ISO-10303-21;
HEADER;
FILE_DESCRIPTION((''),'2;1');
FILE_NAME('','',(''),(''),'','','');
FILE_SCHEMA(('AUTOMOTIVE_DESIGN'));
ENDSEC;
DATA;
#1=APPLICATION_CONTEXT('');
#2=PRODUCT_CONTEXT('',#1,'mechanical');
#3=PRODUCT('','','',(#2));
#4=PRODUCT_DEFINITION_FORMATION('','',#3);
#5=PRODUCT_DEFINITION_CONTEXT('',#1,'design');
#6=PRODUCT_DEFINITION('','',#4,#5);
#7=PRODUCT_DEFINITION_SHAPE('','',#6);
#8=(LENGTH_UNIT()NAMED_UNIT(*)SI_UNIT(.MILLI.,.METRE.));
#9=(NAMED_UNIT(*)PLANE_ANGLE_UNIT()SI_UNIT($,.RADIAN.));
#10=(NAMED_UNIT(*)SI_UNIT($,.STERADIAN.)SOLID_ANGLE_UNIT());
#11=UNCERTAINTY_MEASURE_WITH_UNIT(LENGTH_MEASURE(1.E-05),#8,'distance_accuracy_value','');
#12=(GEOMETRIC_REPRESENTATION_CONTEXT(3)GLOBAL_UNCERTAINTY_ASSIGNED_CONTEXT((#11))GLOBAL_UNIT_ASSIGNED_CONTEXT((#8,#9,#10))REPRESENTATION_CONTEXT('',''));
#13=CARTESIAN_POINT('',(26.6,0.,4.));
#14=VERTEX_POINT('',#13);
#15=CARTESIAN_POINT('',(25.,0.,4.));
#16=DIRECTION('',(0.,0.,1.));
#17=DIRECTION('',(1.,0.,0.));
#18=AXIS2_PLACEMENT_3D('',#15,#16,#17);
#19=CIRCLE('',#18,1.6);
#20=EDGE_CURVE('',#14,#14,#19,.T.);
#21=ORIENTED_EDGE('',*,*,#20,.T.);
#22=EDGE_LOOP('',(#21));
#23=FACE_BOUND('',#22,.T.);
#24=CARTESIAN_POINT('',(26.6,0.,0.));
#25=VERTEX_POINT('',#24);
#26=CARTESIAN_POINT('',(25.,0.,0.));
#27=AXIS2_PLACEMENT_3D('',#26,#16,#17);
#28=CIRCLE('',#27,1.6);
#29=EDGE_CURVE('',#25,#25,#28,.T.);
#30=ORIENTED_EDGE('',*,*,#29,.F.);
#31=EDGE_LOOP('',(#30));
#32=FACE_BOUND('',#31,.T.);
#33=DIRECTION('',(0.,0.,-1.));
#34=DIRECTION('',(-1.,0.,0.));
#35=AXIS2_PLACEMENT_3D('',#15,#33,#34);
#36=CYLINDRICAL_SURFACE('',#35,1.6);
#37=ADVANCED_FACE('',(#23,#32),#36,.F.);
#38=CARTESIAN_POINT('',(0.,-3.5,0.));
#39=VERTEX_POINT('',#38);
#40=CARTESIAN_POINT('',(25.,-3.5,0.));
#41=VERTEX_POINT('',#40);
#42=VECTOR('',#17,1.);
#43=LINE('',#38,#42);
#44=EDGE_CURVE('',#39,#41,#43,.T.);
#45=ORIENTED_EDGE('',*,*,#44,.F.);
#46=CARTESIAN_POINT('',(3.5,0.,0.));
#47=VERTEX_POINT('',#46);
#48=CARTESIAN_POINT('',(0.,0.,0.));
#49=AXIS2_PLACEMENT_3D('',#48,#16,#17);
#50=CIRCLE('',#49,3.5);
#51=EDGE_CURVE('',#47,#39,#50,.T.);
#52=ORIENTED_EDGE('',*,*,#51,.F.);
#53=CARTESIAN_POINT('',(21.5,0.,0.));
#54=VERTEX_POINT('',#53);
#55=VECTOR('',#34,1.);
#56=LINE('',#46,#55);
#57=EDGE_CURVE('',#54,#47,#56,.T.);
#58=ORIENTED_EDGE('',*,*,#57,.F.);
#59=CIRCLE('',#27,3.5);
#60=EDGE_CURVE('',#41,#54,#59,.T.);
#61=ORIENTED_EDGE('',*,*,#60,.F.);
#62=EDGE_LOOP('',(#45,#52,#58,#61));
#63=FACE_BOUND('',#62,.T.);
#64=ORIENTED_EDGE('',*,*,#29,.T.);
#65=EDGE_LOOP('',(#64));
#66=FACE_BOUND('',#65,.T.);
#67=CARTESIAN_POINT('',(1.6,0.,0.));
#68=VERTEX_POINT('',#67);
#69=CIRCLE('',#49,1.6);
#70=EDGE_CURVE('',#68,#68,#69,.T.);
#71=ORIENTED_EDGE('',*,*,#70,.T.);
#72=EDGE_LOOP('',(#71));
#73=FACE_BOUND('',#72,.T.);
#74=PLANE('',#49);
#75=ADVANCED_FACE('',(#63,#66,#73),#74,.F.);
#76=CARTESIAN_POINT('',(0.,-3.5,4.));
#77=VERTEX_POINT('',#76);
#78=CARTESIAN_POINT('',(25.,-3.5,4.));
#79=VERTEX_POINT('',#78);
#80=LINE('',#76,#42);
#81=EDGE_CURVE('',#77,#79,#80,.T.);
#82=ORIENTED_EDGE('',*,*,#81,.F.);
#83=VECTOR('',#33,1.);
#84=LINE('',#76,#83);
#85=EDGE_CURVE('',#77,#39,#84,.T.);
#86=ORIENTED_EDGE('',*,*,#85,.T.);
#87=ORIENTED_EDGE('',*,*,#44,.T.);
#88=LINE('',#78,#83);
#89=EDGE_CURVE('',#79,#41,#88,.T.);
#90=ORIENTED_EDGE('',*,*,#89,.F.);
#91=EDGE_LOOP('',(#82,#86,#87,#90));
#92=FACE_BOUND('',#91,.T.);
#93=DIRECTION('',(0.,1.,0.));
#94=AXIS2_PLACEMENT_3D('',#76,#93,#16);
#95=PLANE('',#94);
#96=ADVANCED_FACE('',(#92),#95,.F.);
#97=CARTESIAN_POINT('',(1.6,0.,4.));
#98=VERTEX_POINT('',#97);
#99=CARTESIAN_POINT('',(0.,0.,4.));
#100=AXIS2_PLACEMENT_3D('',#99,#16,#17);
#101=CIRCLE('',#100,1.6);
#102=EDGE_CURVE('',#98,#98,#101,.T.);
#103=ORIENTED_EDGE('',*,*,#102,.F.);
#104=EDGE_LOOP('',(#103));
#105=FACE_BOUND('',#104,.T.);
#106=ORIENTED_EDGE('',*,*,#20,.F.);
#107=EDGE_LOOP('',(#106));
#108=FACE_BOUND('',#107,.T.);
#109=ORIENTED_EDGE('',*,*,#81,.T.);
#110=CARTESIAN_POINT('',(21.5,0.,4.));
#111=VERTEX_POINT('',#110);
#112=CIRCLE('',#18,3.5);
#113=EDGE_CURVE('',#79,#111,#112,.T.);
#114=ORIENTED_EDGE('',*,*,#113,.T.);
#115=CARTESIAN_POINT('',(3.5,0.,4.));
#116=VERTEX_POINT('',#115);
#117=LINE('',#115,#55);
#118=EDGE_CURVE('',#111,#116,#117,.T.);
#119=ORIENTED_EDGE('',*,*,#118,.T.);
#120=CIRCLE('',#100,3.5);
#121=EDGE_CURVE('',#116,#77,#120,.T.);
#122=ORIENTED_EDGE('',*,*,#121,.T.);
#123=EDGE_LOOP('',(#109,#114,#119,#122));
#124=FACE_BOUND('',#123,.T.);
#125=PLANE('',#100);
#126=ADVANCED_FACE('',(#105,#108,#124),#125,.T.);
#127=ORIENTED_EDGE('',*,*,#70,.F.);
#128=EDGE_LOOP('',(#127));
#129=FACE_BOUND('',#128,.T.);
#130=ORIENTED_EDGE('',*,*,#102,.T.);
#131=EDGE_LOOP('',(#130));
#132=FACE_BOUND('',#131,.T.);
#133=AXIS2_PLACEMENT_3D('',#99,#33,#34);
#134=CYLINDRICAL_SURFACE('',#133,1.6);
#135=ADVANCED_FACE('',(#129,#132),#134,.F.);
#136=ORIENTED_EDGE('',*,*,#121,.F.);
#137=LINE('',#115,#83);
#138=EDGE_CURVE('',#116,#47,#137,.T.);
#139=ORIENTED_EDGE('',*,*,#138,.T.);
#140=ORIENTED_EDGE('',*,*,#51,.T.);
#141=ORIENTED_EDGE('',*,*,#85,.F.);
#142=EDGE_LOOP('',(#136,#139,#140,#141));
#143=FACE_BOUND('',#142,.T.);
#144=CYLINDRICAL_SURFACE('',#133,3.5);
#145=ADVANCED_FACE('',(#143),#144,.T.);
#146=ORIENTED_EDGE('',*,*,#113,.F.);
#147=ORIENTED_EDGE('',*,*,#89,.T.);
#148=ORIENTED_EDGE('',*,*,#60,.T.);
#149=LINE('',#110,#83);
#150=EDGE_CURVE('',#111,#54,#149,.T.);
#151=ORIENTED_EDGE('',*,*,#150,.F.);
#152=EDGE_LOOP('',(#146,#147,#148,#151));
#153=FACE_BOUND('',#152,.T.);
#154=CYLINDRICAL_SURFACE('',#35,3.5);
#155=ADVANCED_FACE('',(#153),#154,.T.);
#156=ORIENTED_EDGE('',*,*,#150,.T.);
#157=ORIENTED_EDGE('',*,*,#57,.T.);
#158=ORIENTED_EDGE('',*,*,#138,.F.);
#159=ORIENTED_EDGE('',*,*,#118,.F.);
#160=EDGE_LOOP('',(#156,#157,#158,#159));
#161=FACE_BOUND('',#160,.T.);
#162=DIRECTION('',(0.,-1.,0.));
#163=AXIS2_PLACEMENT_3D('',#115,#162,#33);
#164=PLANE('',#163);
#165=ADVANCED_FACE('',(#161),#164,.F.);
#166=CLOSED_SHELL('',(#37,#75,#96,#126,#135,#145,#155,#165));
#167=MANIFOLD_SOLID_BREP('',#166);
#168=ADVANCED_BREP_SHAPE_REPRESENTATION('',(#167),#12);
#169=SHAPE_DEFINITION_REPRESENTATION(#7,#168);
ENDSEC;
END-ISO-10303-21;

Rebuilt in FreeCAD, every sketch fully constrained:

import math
import FreeCAD as App
import Part
import Sketcher

V = App.Vector
Q = App.Units.Quantity

doc = App.newDocument("Part")
body = doc.addObject("PartDesign::Body", "Body")

sketch1 = doc.addObject("Sketcher::SketchObject", "Sketch")
body.addObject(sketch1)
sketch1.AttachmentSupport = (doc.XY_Plane, [""])
sketch1.MapMode = "FlatFace"
sketch1.addGeometry([
    Part.LineSegment(V(0, -3.5, 0), V(25, -3.5, 0)),
    Part.ArcOfCircle(Part.Circle(V(25, 0, 0), V(0, 0, 1), 3.5), math.radians(-90), math.radians(180)),
    Part.LineSegment(V(21.5, 0, 0), V(3.5, 0, 0)),
    Part.ArcOfCircle(Part.Circle(V(0, 0, 0), V(0, 0, 1), 3.5), math.radians(0), math.radians(270)),
    Part.Circle(V(0, 0, 0), V(0, 0, 1), 1.6),
    Part.Circle(V(25, 0, 0), V(0, 0, 1), 1.6),
], False)
sketch1.addConstraint([
    Sketcher.Constraint("Tangent", 0, 2, 1, 1),
    Sketcher.Constraint("Coincident", 1, 2, 2, 1),
    Sketcher.Constraint("Coincident", 2, 2, 3, 1),
    Sketcher.Constraint("Tangent", 3, 2, 0, 1),
    Sketcher.Constraint("Horizontal", 0),
    Sketcher.Constraint("Horizontal", 2),
    Sketcher.Constraint("Coincident", 3, 3, -1, 1),
    Sketcher.Constraint("Coincident", 4, 3, -1, 1),
    Sketcher.Constraint("Coincident", 5, 3, 1, 3),
    Sketcher.Constraint("Equal", 1, 3),
    Sketcher.Constraint("Equal", 4, 5),
    Sketcher.Constraint("PointOnObject", 1, 2, -1),
    Sketcher.Constraint("Diameter", 4, Q("3.2 mm")),
    Sketcher.Constraint("Radius", 1, Q("3.5 mm")),
    Sketcher.Constraint("DistanceX", 0, 1, 0, 2, Q("25 mm")),
])
pad1 = doc.addObject("PartDesign::Pad", "Pad")
body.addObject(pad1)
pad1.Profile = sketch1
pad1.Length = 4

doc.recompute()
